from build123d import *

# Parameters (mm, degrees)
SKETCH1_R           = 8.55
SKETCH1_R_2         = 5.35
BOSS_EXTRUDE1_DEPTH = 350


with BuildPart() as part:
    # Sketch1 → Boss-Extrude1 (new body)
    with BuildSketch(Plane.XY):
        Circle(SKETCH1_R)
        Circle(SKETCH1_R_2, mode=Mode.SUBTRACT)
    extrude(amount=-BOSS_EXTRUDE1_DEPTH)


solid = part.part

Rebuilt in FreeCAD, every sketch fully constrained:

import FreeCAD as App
import Part
import Sketcher

V = App.Vector
Q = App.Units.Quantity

doc = App.newDocument("Part")
params = doc.addObject("Spreadsheet::Sheet", "Params")
for row, (alias, value) in enumerate([
    ("sketch1_diameter", "17.1 mm"),
    ("sketch1_diameter2", "10.7 mm"),
    ("pad1_length", "350 mm"),
], start=1):
    params.set(f"A{row}", alias)
    params.set(f"B{row}", "=" + value)
    params.setAlias(f"B{row}", alias)

body = doc.addObject("PartDesign::Body", "Body")

# Sketch on XY plane
sketch1 = body.newObject("Sketcher::SketchObject", "Sketch")
sketch1.AttachmentSupport = (doc.getObject("XY_Plane"), [""])
sketch1.MapMode = "FlatFace"
sketch1.addGeometry(Part.Circle(V(0, 0, 0), V(0, 0, 1), 9), False)
sketch1.addGeometry(Part.Circle(V(0, 0, 0), V(0, 0, 1), 5), False)
sketch1.addConstraint(Sketcher.Constraint("Coincident", 0, 3, -1, 1))
sketch1.addConstraint(Sketcher.Constraint("Coincident", 1, 3, -1, 1))
sketch1.addConstraint(Sketcher.Constraint("Diameter", 0, Q("17.1 mm")))
sketch1.addConstraint(Sketcher.Constraint("Diameter", 1, Q("10.7 mm")))
sketch1.setExpression("Constraints[2]", "Params.sketch1_diameter")
sketch1.setExpression("Constraints[3]", "Params.sketch1_diameter2")
pad1 = body.newObject("PartDesign::Pad", "Pad")
pad1.Profile = sketch1
pad1.setExpression("Length", "Params.pad1_length")
pad1.Reversed = True

doc.recompute()
